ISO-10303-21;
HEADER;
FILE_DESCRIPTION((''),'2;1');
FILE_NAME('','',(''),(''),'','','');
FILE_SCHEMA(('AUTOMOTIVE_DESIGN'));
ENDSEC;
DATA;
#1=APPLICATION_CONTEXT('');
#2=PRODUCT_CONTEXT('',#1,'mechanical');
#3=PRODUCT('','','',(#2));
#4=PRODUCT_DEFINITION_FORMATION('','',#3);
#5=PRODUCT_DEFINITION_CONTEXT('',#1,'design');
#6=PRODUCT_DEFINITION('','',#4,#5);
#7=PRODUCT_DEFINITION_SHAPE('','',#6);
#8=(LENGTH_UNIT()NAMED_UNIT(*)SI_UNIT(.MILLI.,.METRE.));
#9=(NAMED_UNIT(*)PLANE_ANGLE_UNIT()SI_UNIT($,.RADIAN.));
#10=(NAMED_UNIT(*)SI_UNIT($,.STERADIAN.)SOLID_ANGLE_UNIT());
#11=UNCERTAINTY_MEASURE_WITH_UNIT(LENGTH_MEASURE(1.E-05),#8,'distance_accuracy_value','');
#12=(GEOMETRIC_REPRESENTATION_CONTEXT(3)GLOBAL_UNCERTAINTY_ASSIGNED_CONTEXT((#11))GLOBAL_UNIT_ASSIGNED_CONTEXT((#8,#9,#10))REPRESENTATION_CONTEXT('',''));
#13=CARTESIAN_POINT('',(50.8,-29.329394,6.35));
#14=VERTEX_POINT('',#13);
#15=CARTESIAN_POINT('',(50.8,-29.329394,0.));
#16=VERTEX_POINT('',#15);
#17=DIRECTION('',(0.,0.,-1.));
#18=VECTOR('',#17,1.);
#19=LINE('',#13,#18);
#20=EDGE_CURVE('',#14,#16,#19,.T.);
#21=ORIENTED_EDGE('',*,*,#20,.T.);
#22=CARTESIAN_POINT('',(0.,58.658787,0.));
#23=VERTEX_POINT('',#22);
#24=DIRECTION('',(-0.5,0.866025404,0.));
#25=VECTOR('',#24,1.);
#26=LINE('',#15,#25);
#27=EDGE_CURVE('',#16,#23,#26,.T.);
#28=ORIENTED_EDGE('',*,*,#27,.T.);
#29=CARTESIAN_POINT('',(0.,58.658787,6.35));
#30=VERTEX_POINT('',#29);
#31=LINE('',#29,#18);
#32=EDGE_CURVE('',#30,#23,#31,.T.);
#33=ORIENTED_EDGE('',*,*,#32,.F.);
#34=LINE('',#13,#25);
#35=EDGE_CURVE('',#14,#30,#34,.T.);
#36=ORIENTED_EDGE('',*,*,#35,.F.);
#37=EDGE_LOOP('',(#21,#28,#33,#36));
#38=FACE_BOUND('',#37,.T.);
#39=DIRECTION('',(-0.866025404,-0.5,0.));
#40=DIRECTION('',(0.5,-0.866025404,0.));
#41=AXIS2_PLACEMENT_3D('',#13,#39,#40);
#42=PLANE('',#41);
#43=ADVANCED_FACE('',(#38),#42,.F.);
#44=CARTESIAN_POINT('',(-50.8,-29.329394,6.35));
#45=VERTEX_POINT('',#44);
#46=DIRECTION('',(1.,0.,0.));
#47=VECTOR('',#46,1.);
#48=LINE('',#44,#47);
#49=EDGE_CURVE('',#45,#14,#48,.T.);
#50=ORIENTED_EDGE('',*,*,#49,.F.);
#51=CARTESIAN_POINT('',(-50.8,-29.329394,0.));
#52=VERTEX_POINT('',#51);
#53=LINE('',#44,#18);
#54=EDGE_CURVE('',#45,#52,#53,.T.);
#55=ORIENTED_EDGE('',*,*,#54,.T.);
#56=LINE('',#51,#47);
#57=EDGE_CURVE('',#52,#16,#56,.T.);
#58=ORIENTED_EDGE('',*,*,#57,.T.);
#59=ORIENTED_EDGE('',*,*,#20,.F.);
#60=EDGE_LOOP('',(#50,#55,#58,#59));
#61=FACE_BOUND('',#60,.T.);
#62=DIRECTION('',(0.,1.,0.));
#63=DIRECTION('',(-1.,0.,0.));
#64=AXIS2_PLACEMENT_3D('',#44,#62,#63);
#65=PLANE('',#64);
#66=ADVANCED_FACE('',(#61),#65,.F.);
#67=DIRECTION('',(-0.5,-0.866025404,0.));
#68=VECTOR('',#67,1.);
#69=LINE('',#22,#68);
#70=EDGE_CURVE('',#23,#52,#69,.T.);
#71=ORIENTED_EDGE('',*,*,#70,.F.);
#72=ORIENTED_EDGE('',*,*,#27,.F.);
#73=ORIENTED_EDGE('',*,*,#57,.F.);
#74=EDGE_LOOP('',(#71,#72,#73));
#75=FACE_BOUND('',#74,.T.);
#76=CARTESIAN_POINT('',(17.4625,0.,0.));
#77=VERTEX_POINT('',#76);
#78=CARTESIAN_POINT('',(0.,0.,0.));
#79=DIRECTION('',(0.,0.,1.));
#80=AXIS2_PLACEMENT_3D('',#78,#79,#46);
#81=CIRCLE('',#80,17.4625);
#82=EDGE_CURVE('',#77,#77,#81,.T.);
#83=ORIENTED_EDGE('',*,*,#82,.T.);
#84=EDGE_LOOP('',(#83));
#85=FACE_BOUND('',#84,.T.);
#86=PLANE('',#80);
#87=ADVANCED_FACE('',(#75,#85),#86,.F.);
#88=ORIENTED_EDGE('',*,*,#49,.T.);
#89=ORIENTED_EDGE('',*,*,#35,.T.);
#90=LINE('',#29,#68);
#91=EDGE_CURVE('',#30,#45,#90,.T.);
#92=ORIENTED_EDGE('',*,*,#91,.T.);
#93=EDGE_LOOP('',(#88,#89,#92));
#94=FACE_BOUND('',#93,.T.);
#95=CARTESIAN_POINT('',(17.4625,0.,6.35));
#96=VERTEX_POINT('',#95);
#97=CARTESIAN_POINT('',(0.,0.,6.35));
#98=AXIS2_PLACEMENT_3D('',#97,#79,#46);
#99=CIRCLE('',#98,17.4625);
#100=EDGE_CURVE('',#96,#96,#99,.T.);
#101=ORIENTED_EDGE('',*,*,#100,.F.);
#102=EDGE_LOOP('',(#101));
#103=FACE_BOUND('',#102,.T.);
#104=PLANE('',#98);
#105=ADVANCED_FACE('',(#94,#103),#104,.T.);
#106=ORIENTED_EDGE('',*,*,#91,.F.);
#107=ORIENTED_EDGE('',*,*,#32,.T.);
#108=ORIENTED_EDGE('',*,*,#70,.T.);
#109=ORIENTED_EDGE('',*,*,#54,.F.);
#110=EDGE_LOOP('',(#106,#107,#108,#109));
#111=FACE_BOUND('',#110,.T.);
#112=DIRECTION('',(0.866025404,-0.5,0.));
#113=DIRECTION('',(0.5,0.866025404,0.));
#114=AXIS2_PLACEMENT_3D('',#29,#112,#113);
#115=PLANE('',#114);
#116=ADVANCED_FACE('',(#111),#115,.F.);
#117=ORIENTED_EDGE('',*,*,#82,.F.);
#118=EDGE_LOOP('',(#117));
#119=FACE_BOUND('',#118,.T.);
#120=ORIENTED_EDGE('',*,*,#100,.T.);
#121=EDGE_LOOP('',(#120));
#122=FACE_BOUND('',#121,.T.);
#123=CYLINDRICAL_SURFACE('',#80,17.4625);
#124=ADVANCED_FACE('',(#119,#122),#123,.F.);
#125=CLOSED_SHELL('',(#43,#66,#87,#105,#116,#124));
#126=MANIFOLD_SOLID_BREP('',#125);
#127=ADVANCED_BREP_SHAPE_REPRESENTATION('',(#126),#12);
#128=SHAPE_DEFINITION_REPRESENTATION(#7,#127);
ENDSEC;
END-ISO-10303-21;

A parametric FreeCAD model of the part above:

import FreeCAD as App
import Part
import Sketcher
Q = App.Units.Quantity


def add_polygon(sketch, points):
    """Adds a closed chain of lines whose ends are joined by coincident constraints."""
    first, n = sketch.GeometryCount, len(points)
    for a, b in zip(points, points[1:] + points[:1]):
        sketch.addGeometry(Part.LineSegment(App.Vector(*a, 0), App.Vector(*b, 0)), False)
    for i in range(n):
        sketch.addConstraint(Sketcher.Constraint("Coincident", first + i, 2, first + (i + 1) % n, 1))

doc = App.newDocument("Part")
body = doc.addObject("PartDesign::Body", "Body")

# Sketch on XY plane
sketch1 = doc.addObject("Sketcher::SketchObject", "Sketch")
body.addObject(sketch1)
sketch1.AttachmentSupport = (doc.XY_Plane, [""])
sketch1.MapMode = "FlatFace"
add_polygon(sketch1, [(0, 59), (-51, -29), (51, -29)])  # lines 0-2
sketch1.addConstraint([
    Sketcher.Constraint("Horizontal", 1),
    Sketcher.Constraint("PointOnObject", 2, 2, -2),
    Sketcher.Constraint("Equal", 0, 2),
    Sketcher.Constraint("DistanceX", 1, 1, 1, 2, Q("4 in")),
    Sketcher.Constraint("Distance", 0, Q("4 in")),
    Sketcher.Constraint("DistanceY", 0, 2, -1, 1, 29.329394),
])
pad1 = doc.addObject("PartDesign::Pad", "Pad")
body.addObject(pad1)
pad1.Profile = sketch1
pad1.Length = Q("0.25 in")

# Sketch on XY plane
sketch2 = doc.addObject("Sketcher::SketchObject", "Sketch001")
body.addObject(sketch2)
sketch2.AttachmentSupport = (doc.XY_Plane, [""])
sketch2.MapMode = "FlatFace"
sketch2.AttachmentOffset = App.Placement(App.Vector(0, 0, 0.25 * 25.4), App.Rotation())
sketch2.addGeometry(Part.Circle(App.Vector(0, 0, 0), App.Vector(0, 0, 1), 17), False)
sketch2.addConstraint([
    Sketcher.Constraint("Coincident", 0, 3, -1, 1),
    Sketcher.Constraint("Diameter", 0, Q("1.375 in")),
])
pocket1 = doc.addObject("PartDesign::Pocket", "Pocket")
body.addObject(pocket1)
pocket1.Profile = sketch2
pocket1.Type = "ThroughAll"

doc.recompute()
